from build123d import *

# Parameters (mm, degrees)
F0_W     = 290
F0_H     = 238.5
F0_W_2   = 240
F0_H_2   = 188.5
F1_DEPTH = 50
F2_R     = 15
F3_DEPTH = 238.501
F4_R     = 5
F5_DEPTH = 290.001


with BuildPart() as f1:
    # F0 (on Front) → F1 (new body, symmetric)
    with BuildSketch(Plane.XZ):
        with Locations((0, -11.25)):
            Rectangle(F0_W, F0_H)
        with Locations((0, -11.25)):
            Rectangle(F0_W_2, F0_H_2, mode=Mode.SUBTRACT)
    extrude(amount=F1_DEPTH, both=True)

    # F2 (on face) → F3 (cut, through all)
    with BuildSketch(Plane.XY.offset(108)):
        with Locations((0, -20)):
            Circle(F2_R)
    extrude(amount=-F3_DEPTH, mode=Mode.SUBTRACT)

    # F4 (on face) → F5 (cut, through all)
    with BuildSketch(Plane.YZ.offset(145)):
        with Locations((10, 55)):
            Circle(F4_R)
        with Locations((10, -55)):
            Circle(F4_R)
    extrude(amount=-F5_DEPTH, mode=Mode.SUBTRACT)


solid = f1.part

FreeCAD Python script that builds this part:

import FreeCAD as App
import Part
import Sketcher
from FreeCAD import Vector

doc = App.newDocument("Part")
body = doc.addObject("PartDesign::Body", "Body")

# Sketch on XZ plane
sketch1 = body.newObject("Sketcher::SketchObject", "Sketch")
sketch1.AttachmentSupport = (doc.getObject("XZ_Plane"), [""])
sketch1.MapMode = "FlatFace"
sketch1.addGeometry([
    Part.LineSegment(Vector(-145, 108, 0), Vector(-145, -130, 0)),  # 0
    Part.LineSegment(Vector(-145, -130, 0), Vector(145, -130, 0)),  # 1
    Part.LineSegment(Vector(145, -130, 0), Vector(145, 108, 0)),  # 2
    Part.LineSegment(Vector(145, 108, 0), Vector(-145, 108, 0)),  # 3
    Part.LineSegment(Vector(120, -106, 0), Vector(-120, -106, 0)),  # 4
    Part.LineSegment(Vector(-120, -106, 0), Vector(-120, 83, 0)),  # 5
    Part.LineSegment(Vector(-120, 83, 0), Vector(120, 83, 0)),  # 6
    Part.LineSegment(Vector(120, 83, 0), Vector(120, -106, 0)),  # 7
], False)
sketch1.addConstraint([
    Sketcher.Constraint("Coincident", 0, 2, 1, 1),
    Sketcher.Constraint("Coincident", 1, 2, 2, 1),
    Sketcher.Constraint("Coincident", 2, 2, 3, 1),
    Sketcher.Constraint("Coincident", 3, 2, 0, 1),
    Sketcher.Constraint("Coincident", 4, 2, 5, 1),
    Sketcher.Constraint("Coincident", 5, 2, 6, 1),
    Sketcher.Constraint("Coincident", 6, 2, 7, 1),
    Sketcher.Constraint("Coincident", 7, 2, 4, 1),
    Sketcher.Constraint("Vertical", 0),
    Sketcher.Constraint("Horizontal", 1),
    Sketcher.Constraint("Vertical", 2),
    Sketcher.Constraint("Horizontal", 3),
    Sketcher.Constraint("Horizontal", 4),
    Sketcher.Constraint("Vertical", 5),
    Sketcher.Constraint("Horizontal", 6),
    Sketcher.Constraint("Vertical", 7),
    Sketcher.Constraint("DistanceX", 1, 1, 1, 2, 290.0),
    Sketcher.Constraint("DistanceX", 4, 2, 4, 1, 240.0),
    Sketcher.Constraint("DistanceY", 0, 2, 0, 1, 238.5),
    Sketcher.Constraint("DistanceY", 5, 1, 5, 2, 188.5),
    Sketcher.Constraint("DistanceX", 0, 2, -1, 1, 145.0),
    Sketcher.Constraint("DistanceY", -1, 1, 2, 2, 108.0),
    Sketcher.Constraint("DistanceX", 4, 2, -1, 1, 120.0),
    Sketcher.Constraint("DistanceY", -1, 1, 5, 2, 83.0),
])
pad1 = body.newObject("PartDesign::Pad", "Pad")
pad1.Profile = sketch1
pad1.Length = 100
pad1.Midplane = True

# Sketch on XY plane
sketch2 = body.newObject("Sketcher::SketchObject", "Sketch001")
sketch2.AttachmentSupport = (doc.getObject("XY_Plane"), [""])
sketch2.MapMode = "FlatFace"
sketch2.AttachmentOffset = App.Placement(Vector(0, 0, 108), App.Rotation())
sketch2.addGeometry(Part.Circle(Vector(0, -20, 0), Vector(0, 0, 1), 15), False)
sketch2.addConstraint([
    Sketcher.Constraint("PointOnObject", 0, 3, -2),
    Sketcher.Constraint("Diameter", 0, 30.0),
    Sketcher.Constraint("DistanceY", 0, 3, -1, 1, 20.0),
])
pocket1 = body.newObject("PartDesign::Pocket", "Pocket")
pocket1.Profile = sketch2
pocket1.Type = "ThroughAll"

# Sketch on YZ plane
sketch3 = body.newObject("Sketcher::SketchObject", "Sketch002")
sketch3.AttachmentSupport = (doc.getObject("YZ_Plane"), [""])
sketch3.MapMode = "FlatFace"
sketch3.AttachmentOffset = App.Placement(Vector(0, 0, 145), App.Rotation())
sketch3.addGeometry([
    Part.Circle(Vector(10, 55, 0), Vector(0, 0, 1), 5),
    Part.Circle(Vector(10, -55, 0), Vector(0, 0, 1), 5),
], False)
sketch3.addConstraint([
    Sketcher.Constraint("Equal", 0, 1),
    Sketcher.Constraint("Symmetric", 0, 3, 1, 3, -1),
    Sketcher.Constraint("Diameter", 0, 10.0),
    Sketcher.Constraint("DistanceX", -1, 1, 0, 3, 10.0),
    Sketcher.Constraint("DistanceY", -1, 1, 0, 3, 55.0),
])
pocket2 = body.newObject("PartDesign::Pocket", "Pocket001")
pocket2.Profile = sketch3
pocket2.Type = "ThroughAll"

doc.recompute()
